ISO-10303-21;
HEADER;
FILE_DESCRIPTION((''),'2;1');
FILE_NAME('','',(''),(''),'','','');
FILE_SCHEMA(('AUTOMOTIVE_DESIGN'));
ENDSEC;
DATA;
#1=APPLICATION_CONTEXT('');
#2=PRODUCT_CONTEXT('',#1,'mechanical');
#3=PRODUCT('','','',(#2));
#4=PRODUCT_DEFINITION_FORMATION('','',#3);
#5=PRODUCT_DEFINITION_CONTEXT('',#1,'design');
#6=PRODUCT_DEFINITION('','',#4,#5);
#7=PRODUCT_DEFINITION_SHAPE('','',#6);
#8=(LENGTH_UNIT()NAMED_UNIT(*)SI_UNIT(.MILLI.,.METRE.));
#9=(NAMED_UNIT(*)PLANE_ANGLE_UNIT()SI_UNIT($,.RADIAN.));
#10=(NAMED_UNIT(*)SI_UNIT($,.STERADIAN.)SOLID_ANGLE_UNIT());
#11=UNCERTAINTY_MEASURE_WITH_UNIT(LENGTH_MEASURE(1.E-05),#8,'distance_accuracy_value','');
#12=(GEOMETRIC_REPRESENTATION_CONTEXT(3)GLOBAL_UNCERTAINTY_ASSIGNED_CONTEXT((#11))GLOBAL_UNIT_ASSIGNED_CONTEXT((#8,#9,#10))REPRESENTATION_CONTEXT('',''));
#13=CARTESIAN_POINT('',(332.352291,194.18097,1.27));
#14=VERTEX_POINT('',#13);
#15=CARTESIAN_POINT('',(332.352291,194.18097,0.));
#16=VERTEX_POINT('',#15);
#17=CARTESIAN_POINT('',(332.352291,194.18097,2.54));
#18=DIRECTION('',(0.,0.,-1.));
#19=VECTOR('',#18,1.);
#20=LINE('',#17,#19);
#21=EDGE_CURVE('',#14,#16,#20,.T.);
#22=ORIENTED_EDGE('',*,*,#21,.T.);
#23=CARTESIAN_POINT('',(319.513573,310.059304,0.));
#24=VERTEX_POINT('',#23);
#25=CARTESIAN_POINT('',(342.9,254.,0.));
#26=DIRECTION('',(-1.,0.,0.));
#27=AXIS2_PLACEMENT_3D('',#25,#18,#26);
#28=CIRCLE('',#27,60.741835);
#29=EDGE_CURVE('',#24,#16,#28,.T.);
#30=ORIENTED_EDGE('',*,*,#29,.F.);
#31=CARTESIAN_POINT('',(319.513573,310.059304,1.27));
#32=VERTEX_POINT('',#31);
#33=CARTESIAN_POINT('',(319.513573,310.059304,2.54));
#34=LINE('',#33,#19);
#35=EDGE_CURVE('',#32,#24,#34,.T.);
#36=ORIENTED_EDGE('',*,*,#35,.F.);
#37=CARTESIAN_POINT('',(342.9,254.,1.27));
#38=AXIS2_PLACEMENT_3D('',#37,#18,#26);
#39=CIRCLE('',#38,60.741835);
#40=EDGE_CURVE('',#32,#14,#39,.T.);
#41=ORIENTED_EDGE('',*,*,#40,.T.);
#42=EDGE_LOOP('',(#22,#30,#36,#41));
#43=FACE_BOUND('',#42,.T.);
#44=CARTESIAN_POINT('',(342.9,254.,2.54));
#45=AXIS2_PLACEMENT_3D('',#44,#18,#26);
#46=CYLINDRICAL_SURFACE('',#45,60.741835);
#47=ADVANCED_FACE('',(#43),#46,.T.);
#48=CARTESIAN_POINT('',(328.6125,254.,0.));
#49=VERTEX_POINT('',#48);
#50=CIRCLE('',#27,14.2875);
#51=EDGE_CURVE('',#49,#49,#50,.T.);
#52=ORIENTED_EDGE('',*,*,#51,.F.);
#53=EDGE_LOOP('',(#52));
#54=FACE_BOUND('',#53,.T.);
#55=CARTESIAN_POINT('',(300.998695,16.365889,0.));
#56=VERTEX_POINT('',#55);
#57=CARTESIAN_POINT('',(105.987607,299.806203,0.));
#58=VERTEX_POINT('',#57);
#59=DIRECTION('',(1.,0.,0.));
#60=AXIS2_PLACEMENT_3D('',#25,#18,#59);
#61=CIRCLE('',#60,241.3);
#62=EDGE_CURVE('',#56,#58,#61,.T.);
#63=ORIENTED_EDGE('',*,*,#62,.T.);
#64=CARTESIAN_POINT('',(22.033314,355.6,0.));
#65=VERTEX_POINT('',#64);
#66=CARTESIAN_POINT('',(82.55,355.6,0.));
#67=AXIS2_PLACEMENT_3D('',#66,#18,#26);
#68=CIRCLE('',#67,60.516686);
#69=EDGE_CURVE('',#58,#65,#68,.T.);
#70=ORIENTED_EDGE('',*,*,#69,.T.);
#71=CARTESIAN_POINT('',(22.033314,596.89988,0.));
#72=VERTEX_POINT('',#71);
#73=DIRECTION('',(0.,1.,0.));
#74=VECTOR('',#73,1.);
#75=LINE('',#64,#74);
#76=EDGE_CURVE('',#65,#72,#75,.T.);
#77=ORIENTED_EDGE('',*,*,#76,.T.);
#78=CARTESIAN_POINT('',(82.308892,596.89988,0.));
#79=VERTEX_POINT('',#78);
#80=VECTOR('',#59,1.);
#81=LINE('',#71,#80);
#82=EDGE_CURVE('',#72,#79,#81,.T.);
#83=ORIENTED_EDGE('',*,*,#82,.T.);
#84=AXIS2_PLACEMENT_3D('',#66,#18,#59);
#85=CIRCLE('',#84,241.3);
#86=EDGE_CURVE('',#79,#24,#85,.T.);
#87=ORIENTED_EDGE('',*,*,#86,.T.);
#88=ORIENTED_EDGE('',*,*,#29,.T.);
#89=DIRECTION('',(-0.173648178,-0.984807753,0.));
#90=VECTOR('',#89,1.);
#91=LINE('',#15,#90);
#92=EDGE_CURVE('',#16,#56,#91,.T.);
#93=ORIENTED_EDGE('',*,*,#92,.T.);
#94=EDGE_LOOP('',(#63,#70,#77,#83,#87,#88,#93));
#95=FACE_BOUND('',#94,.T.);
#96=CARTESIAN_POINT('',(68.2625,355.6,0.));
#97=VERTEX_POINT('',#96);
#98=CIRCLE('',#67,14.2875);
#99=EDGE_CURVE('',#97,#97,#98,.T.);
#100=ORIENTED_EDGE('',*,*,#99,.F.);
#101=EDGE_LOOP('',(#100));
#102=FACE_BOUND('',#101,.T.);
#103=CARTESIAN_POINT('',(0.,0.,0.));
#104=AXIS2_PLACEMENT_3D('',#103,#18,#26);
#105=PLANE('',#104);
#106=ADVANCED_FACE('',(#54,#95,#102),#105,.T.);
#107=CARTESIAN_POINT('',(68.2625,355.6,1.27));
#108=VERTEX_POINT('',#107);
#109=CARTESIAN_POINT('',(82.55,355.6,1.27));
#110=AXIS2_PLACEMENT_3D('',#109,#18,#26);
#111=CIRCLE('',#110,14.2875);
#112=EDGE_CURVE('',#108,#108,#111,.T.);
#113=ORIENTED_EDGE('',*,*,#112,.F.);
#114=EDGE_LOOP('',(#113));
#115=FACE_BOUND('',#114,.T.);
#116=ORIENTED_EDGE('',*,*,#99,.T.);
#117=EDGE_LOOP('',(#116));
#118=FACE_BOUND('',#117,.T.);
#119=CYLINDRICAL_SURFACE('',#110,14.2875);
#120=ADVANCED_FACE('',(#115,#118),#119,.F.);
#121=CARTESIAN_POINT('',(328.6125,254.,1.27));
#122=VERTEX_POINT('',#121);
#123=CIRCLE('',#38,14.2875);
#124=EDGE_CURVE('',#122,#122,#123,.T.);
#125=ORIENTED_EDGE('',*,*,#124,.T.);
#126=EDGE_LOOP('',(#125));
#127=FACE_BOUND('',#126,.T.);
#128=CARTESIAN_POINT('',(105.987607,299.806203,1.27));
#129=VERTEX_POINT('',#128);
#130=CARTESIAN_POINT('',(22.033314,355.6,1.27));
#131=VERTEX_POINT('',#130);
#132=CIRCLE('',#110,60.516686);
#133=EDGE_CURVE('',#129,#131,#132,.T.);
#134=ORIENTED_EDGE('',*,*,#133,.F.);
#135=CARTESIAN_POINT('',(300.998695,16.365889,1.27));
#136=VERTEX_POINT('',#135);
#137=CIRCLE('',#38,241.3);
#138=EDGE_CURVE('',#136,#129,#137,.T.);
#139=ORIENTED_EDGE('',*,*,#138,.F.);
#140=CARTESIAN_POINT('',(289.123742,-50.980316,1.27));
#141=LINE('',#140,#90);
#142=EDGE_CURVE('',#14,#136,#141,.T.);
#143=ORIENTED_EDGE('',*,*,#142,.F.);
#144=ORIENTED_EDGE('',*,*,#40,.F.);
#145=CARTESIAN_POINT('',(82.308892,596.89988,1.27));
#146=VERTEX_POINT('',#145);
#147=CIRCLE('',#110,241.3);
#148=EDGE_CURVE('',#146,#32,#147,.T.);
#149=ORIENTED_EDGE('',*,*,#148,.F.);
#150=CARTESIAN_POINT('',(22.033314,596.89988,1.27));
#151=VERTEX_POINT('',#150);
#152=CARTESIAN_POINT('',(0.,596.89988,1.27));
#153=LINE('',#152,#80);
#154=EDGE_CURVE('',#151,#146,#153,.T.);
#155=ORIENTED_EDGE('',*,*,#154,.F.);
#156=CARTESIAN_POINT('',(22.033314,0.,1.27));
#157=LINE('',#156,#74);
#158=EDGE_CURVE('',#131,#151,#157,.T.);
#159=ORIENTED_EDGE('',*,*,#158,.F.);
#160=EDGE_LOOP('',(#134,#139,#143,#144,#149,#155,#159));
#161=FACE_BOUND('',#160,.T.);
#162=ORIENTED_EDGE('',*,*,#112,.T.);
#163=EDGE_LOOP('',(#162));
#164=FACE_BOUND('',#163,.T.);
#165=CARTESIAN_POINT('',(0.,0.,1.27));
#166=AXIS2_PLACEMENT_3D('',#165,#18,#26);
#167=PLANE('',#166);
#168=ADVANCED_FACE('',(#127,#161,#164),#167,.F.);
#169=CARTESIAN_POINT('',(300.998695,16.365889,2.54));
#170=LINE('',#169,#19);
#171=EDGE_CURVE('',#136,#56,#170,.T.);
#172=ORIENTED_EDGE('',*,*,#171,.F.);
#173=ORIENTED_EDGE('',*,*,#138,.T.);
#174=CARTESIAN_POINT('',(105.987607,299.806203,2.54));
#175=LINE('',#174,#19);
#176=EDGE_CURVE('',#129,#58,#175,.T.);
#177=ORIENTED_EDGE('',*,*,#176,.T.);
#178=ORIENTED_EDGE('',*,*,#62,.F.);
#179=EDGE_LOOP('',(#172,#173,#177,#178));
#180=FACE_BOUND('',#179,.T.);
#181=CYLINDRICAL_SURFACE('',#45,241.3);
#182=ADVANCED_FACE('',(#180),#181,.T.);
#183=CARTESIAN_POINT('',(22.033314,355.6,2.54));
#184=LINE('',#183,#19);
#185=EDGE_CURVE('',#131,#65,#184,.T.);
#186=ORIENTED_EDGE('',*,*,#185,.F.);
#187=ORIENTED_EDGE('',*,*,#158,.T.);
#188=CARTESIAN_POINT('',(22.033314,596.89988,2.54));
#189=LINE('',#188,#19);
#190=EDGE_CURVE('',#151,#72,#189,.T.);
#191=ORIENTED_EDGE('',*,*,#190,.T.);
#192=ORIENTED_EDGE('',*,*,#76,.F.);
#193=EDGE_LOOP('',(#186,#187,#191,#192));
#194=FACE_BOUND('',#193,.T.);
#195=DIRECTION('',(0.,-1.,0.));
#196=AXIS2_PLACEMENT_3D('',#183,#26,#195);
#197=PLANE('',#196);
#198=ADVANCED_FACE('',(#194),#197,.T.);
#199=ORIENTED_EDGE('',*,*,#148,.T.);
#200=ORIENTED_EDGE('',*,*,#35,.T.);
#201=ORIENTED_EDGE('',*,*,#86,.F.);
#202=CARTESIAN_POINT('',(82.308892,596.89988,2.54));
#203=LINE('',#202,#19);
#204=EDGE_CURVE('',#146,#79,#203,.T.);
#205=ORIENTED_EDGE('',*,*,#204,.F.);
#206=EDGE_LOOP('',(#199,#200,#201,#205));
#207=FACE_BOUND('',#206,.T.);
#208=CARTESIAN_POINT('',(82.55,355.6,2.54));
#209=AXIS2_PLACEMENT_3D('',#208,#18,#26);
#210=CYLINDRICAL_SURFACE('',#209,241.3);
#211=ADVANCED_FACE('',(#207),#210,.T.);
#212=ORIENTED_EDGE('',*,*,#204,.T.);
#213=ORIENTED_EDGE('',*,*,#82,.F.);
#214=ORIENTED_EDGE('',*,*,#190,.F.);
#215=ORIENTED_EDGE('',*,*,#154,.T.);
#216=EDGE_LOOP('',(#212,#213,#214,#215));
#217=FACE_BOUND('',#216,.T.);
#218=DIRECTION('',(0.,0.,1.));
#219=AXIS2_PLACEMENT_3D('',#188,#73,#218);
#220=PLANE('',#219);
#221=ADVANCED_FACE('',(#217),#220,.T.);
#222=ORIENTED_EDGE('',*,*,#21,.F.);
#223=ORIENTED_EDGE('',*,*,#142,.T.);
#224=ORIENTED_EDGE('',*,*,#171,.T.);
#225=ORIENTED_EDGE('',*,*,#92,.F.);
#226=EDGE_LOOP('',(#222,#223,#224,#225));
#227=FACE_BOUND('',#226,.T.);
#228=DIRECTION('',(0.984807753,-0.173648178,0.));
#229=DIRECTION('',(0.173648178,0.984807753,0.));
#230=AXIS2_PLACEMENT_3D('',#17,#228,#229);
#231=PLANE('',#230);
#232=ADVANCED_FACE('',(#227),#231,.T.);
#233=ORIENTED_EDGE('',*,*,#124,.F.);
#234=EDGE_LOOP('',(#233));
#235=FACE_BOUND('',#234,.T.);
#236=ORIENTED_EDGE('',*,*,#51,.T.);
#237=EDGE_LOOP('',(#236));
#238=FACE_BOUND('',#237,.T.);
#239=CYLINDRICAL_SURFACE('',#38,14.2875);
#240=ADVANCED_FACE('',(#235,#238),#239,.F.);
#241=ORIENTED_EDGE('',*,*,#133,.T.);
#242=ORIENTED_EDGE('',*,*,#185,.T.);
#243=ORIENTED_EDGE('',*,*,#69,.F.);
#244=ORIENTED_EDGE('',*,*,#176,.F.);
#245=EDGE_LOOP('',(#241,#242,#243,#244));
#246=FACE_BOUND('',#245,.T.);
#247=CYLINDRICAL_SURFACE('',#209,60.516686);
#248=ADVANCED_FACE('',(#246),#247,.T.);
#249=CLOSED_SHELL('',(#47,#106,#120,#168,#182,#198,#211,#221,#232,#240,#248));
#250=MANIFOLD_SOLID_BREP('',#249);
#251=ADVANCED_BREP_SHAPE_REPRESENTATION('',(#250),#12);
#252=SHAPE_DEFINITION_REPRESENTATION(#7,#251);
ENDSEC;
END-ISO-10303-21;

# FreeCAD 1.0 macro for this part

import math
import FreeCAD as App
import Part
import Sketcher
Q = App.Units.Quantity

doc = App.newDocument("Part")
body = doc.addObject("PartDesign::Body", "Body")

sketch1 = body.newObject("Sketcher::SketchObject", "Sketch")
sketch1.AttachmentSupport = (doc.getObject("XY_Plane"), [""])
sketch1.MapMode = "FlatFace"
sketch1.addGeometry(Part.LineSegment(App.Vector(0, 610, 0), App.Vector(0, 0, 0)), False)
sketch1.addGeometry(Part.LineSegment(App.Vector(0, 0, 0), App.Vector(432, 0, 0)), False)
sketch1.addGeometry(Part.LineSegment(App.Vector(432, 0, 0), App.Vector(432, 610, 0)), False)
sketch1.addGeometry(Part.LineSegment(App.Vector(432, 610, 0), App.Vector(0, 610, 0)), False)
sketch1.addConstraint(Sketcher.Constraint("Coincident", 0, 2, 1, 1))
sketch1.addConstraint(Sketcher.Constraint("Coincident", 1, 2, 2, 1))
sketch1.addConstraint(Sketcher.Constraint("Coincident", 2, 2, 3, 1))
sketch1.addConstraint(Sketcher.Constraint("Coincident", 3, 2, 0, 1))
sketch1.addConstraint(Sketcher.Constraint("Vertical", 0))
sketch1.addConstraint(Sketcher.Constraint("Horizontal", 1))
sketch1.addConstraint(Sketcher.Constraint("Vertical", 2))
sketch1.addConstraint(Sketcher.Constraint("Horizontal", 3))
sketch1.addConstraint(Sketcher.Constraint("Coincident", 0, 2, -1, 1))
sketch1.addConstraint(Sketcher.Constraint("DistanceX", 1, 1, 1, 2, Q("17 in")))
sketch1.addConstraint(Sketcher.Constraint("DistanceY", 0, 2, 0, 1, Q("24 in")))
pad1 = body.newObject("PartDesign::Pad", "Pad")
pad1.Profile = sketch1
pad1.Length = Q("0.05 in")

sketch2 = body.newObject("Sketcher::SketchObject", "Sketch001")
sketch2.AttachmentSupport = (doc.getObject("XY_Plane"), [""])
sketch2.MapMode = "FlatFace"
sketch2.addGeometry(Part.Circle(App.Vector(83, 356, 0), App.Vector(0, 0, 1), 14), False)
sketch2.addGeometry(Part.Circle(App.Vector(343, 254, 0), App.Vector(0, 0, 1), 14), False)
sketch2.addConstraint(Sketcher.Constraint("Equal", 0, 1))
sketch2.addConstraint(Sketcher.Constraint("Diameter", 0, Q("1.125 in")))
sketch2.addConstraint(Sketcher.Constraint("DistanceY", -1, 1, 0, 3, Q("14 in")))
sketch2.addConstraint(Sketcher.Constraint("DistanceY", -1, 1, 1, 3, Q("10 in")))
sketch2.addConstraint(Sketcher.Constraint("DistanceX", -1, 1, 1, 3, Q("13.5 in")))
sketch2.addConstraint(Sketcher.Constraint("DistanceX", -1, 1, 0, 3, Q("3.25 in")))
pocket1 = body.newObject("PartDesign::Pocket", "Pocket")
pocket1.Profile = sketch2
pocket1.Length = Q("0.05 in")
pocket1.Reversed = True

sketch3 = body.newObject("Sketcher::SketchObject", "Sketch002")
sketch3.AttachmentSupport = (doc.getObject("XY_Plane"), [""])
sketch3.MapMode = "FlatFace"
sketch3.addGeometry(Part.LineSegment(App.Vector(508, 685, 0), App.Vector(508, -76, 0)), False)
sketch3.addGeometry(Part.LineSegment(App.Vector(508, -76, 0), App.Vector(-76, -76, 0)), False)
sketch3.addGeometry(Part.LineSegment(App.Vector(-76, -76, 0), App.Vector(-76, 685, 0)), False)
sketch3.addGeometry(Part.LineSegment(App.Vector(-76, 685, 0), App.Vector(508, 685, 0)), False)
sketch3.addGeometry(Part.LineSegment(App.Vector(301, 16, 0), App.Vector(332, 194, 0)), False)
sketch3.addGeometry(Part.ArcOfCircle(Part.Circle(App.Vector(343, 254, 0), App.Vector(0, 0, 1), 61), math.radians(-100), math.radians(113)), False)
sketch3.addGeometry(Part.ArcOfCircle(Part.Circle(App.Vector(83, 356, 0), App.Vector(0, 0, 1), 241), math.radians(-11), math.radians(90)), False)
sketch3.addGeometry(Part.LineSegment(App.Vector(82, 597, 0), App.Vector(22, 597, 0)), False)
sketch3.addGeometry(Part.LineSegment(App.Vector(22, 597, 0), App.Vector(22, 356, 0)), False)
sketch3.addGeometry(Part.ArcOfCircle(Part.Circle(App.Vector(83, 356, 0), App.Vector(0, 0, 1), 61), math.radians(180), math.radians(293)), False)
sketch3.addGeometry(Part.ArcOfCircle(Part.Circle(App.Vector(343, 254, 0), App.Vector(0, 0, 1), 241), math.radians(169), math.radians(260)), False)
sketch3.addConstraint(Sketcher.Constraint("Coincident", 0, 2, 1, 1))
sketch3.addConstraint(Sketcher.Constraint("Coincident", 1, 2, 2, 1))
sketch3.addConstraint(Sketcher.Constraint("Coincident", 2, 2, 3, 1))
sketch3.addConstraint(Sketcher.Constraint("Coincident", 3, 2, 0, 1))
sketch3.addConstraint(Sketcher.Constraint("Coincident", 4, 2, 5, 1))
sketch3.addConstraint(Sketcher.Constraint("Coincident", 5, 2, 6, 1))
sketch3.addConstraint(Sketcher.Constraint("Coincident", 6, 2, 7, 1))
sketch3.addConstraint(Sketcher.Constraint("Coincident", 7, 2, 8, 1))
sketch3.addConstraint(Sketcher.Constraint("Tangent", 8, 2, 9, 1))
sketch3.addConstraint(Sketcher.Constraint("Coincident", 9, 2, 10, 1))
sketch3.addConstraint(Sketcher.Constraint("Coincident", 10, 2, 4, 1))
sketch3.addConstraint(Sketcher.Constraint("Vertical", 0))
sketch3.addConstraint(Sketcher.Constraint("Horizontal", 1))
sketch3.addConstraint(Sketcher.Constraint("Vertical", 2))
sketch3.addConstraint(Sketcher.Constraint("Horizontal", 3))
sketch3.addConstraint(Sketcher.Constraint("Horizontal", 7))
sketch3.addConstraint(Sketcher.Constraint("Vertical", 8))
sketch3.addConstraint(Sketcher.Constraint("Coincident", 9, 3, 6, 3))
sketch3.addConstraint(Sketcher.Constraint("Coincident", 10, 3, 5, 3))
sketch3.addConstraint(Sketcher.Constraint("Equal", 6, 10))
sketch3.addConstraint(Sketcher.Constraint("Radius", 6, Q("9.5 in")))
sketch3.addConstraint(Sketcher.Constraint("DistanceY", -1, 1, 5, 3, Q("10 in")))
sketch3.addConstraint(Sketcher.Constraint("DistanceY", -1, 1, 6, 3, Q("14 in")))
sketch3.addConstraint(Sketcher.Constraint("Angle", 4, Q("80 deg")))
sketch3.addConstraint(Sketcher.Constraint("DistanceX", -1, 1, 5, 3, Q("13.5 in")))
sketch3.addConstraint(Sketcher.Constraint("DistanceX", -1, 1, 6, 3, Q("3.25 in")))
sketch3.addConstraint(Sketcher.Constraint("DistanceX", 1, 2, 1, 1, 583.208))
sketch3.addConstraint(Sketcher.Constraint("DistanceY", 0, 2, 0, 1, 761.008))
sketch3.addConstraint(Sketcher.Constraint("Radius", 5, 60.741835))
sketch3.addConstraint(Sketcher.Constraint("Radius", 9, 60.516686))
sketch3.addConstraint(Sketcher.Constraint("DistanceX", -1, 1, 0, 2, 507.504))
sketch3.addConstraint(Sketcher.Constraint("DistanceY", 0, 2, -1, 1, 75.704))
sketch3.addConstraint(Sketcher.Constraint("DistanceX", 7, 2, 7, 1, 60.275577))
sketch3.addConstraint(Sketcher.Constraint("DistanceX", -1, 1, 4, 2, 332.352291))
pocket2 = body.newObject("PartDesign::Pocket", "Pocket001")
pocket2.Profile = sketch3
pocket2.Length = Q("0.1 in")
pocket2.Reversed = True

doc.recompute()
